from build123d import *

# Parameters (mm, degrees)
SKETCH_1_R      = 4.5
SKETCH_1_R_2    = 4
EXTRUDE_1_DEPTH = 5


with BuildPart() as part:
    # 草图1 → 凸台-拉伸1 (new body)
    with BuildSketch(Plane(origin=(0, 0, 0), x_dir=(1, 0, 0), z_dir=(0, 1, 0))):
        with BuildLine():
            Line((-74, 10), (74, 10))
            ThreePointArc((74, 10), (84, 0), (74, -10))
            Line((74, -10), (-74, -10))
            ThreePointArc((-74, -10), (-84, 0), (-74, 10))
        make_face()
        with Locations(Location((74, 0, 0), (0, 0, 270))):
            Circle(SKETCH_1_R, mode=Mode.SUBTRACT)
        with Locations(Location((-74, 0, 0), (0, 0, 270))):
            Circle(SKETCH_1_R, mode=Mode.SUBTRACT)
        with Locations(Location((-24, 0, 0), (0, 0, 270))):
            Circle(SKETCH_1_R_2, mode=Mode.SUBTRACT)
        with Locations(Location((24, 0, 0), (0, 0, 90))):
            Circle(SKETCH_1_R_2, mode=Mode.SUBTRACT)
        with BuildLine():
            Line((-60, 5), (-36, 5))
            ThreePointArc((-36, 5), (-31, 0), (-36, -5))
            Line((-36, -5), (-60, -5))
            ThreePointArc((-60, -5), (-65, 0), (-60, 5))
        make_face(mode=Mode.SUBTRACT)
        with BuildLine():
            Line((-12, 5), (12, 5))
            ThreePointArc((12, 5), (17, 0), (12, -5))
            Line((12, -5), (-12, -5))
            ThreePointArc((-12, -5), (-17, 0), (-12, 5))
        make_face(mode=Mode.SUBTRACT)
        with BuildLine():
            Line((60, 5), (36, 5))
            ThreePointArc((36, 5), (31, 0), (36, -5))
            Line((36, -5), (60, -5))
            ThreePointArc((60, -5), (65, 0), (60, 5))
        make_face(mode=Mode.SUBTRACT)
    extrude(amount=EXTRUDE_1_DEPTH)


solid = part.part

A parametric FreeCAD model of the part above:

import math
import FreeCAD as App
import Part
import Sketcher

doc = App.newDocument("Part")
body = doc.addObject("PartDesign::Body", "Body")

sketch1 = body.newObject("Sketcher::SketchObject", "Sketch")
sketch1.AttachmentSupport = (doc.getObject("XZ_Plane"), [""])
sketch1.MapMode = "FlatFace"
sketch1.addGeometry([
    Part.LineSegment(App.Vector(74, -10, 0), App.Vector(-74, -10, 0)),
    Part.ArcOfCircle(Part.Circle(App.Vector(-74, 0, 0), App.Vector(0, 0, 1), 10), math.radians(90), math.radians(270)),
    Part.LineSegment(App.Vector(-74, 10, 0), App.Vector(74, 10, 0)),
    Part.ArcOfCircle(Part.Circle(App.Vector(74, 0, 0), App.Vector(0, 0, 1), 10), math.radians(-90), math.radians(90)),
    Part.Circle(App.Vector(74, 0, 0), App.Vector(0, 0, 1), 4.5),
    Part.ArcOfCircle(Part.Circle(App.Vector(60, 0, 0), App.Vector(0, 0, 1), 5), math.radians(-90), math.radians(90)),
    Part.LineSegment(App.Vector(60, 5, 0), App.Vector(36, 5, 0)),
    Part.ArcOfCircle(Part.Circle(App.Vector(36, 0, 0), App.Vector(0, 0, 1), 5), math.radians(90), math.radians(270)),
    Part.LineSegment(App.Vector(36, -5, 0), App.Vector(60, -5, 0)),
    Part.Circle(App.Vector(24, 0, 0), App.Vector(0, 0, 1), 4),
    Part.LineSegment(App.Vector(-12, -5, 0), App.Vector(12, -5, 0)),
    Part.ArcOfCircle(Part.Circle(App.Vector(12, 0, 0), App.Vector(0, 0, 1), 5), math.radians(-90), math.radians(90)),
    Part.LineSegment(App.Vector(12, 5, 0), App.Vector(-12, 5, 0)),
    Part.ArcOfCircle(Part.Circle(App.Vector(-12, 0, 0), App.Vector(0, 0, 1), 5), math.radians(90), math.radians(270)),
    Part.Circle(App.Vector(-24, 0, 0), App.Vector(0, 0, 1), 4),
    Part.LineSegment(App.Vector(-60, -5, 0), App.Vector(-36, -5, 0)),
    Part.ArcOfCircle(Part.Circle(App.Vector(-36, 0, 0), App.Vector(0, 0, 1), 5), math.radians(-90), math.radians(90)),
    Part.LineSegment(App.Vector(-36, 5, 0), App.Vector(-60, 5, 0)),
    Part.ArcOfCircle(Part.Circle(App.Vector(-60, 0, 0), App.Vector(0, 0, 1), 5), math.radians(90), math.radians(270)),
    Part.Circle(App.Vector(-74, 0, 0), App.Vector(0, 0, 1), 4.5),
], False)
sketch1.addConstraint([
    Sketcher.Constraint("Tangent", 0, 2, 1, 2),
    Sketcher.Constraint("Tangent", 1, 1, 2, 1),
    Sketcher.Constraint("Tangent", 2, 2, 3, 2),
    Sketcher.Constraint("Tangent", 3, 1, 0, 1),
    Sketcher.Constraint("Tangent", 5, 2, 6, 1),
    Sketcher.Constraint("Tangent", 6, 2, 7, 1),
    Sketcher.Constraint("Tangent", 7, 2, 8, 1),
    Sketcher.Constraint("Tangent", 8, 2, 5, 1),
    Sketcher.Constraint("Tangent", 10, 2, 11, 1),
    Sketcher.Constraint("Tangent", 11, 2, 12, 1),
    Sketcher.Constraint("Tangent", 12, 2, 13, 1),
    Sketcher.Constraint("Tangent", 13, 2, 10, 1),
    Sketcher.Constraint("Tangent", 15, 2, 16, 1),
    Sketcher.Constraint("Tangent", 16, 2, 17, 1),
    Sketcher.Constraint("Tangent", 17, 2, 18, 1),
    Sketcher.Constraint("Tangent", 18, 2, 15, 1),
    Sketcher.Constraint("Horizontal", 0),
    Sketcher.Constraint("Horizontal", 2),
    Sketcher.Constraint("Horizontal", 6),
    Sketcher.Constraint("Horizontal", 8),
    Sketcher.Constraint("Horizontal", 10),
    Sketcher.Constraint("Horizontal", 12),
    Sketcher.Constraint("Horizontal", 15),
    Sketcher.Constraint("Horizontal", 17),
    Sketcher.Constraint("Coincident", 4, 3, 3, 3),
    Sketcher.Constraint("Coincident", 19, 3, 1, 3),
    Sketcher.Constraint("Equal", 7, 11),
    Sketcher.Constraint("Equal", 9, 14),
    Sketcher.Constraint("Equal", 13, 16),
    Sketcher.Constraint("Equal", 4, 19),
    Sketcher.Constraint("Symmetric", 1, 3, 3, 3, -1, 1),
    Sketcher.Constraint("Symmetric", 11, 3, 13, 3, -1, 1),
    Sketcher.Constraint("Symmetric", 9, 3, 14, 3, -1, 1),
    Sketcher.Constraint("Symmetric", 7, 3, 16, 3, -1, 1),
    Sketcher.Constraint("Symmetric", 5, 3, 18, 3, -2),
    Sketcher.Constraint("PointOnObject", 9, 3, -1),
    Sketcher.Constraint("Equal", 8, 10),
    Sketcher.Constraint("Diameter", 4, 9.0),
    Sketcher.Constraint("Diameter", 9, 8.0),
    Sketcher.Constraint("Radius", 1, 10.0),
    Sketcher.Constraint("Radius", 5, 5.0),
    Sketcher.Constraint("DistanceX", 0, 2, 0, 1, 148.0),
    Sketcher.Constraint("DistanceX", 6, 2, 6, 1, 24.0),
    Sketcher.Constraint("DistanceX", -1, 1, 5, 3, 60.0),
    Sketcher.Constraint("DistanceX", -1, 1, 9, 3, 24.0),
])
pad1 = body.newObject("PartDesign::Pad", "Pad")
pad1.Profile = sketch1
pad1.Length = 5
pad1.Reversed = True

doc.recompute()
